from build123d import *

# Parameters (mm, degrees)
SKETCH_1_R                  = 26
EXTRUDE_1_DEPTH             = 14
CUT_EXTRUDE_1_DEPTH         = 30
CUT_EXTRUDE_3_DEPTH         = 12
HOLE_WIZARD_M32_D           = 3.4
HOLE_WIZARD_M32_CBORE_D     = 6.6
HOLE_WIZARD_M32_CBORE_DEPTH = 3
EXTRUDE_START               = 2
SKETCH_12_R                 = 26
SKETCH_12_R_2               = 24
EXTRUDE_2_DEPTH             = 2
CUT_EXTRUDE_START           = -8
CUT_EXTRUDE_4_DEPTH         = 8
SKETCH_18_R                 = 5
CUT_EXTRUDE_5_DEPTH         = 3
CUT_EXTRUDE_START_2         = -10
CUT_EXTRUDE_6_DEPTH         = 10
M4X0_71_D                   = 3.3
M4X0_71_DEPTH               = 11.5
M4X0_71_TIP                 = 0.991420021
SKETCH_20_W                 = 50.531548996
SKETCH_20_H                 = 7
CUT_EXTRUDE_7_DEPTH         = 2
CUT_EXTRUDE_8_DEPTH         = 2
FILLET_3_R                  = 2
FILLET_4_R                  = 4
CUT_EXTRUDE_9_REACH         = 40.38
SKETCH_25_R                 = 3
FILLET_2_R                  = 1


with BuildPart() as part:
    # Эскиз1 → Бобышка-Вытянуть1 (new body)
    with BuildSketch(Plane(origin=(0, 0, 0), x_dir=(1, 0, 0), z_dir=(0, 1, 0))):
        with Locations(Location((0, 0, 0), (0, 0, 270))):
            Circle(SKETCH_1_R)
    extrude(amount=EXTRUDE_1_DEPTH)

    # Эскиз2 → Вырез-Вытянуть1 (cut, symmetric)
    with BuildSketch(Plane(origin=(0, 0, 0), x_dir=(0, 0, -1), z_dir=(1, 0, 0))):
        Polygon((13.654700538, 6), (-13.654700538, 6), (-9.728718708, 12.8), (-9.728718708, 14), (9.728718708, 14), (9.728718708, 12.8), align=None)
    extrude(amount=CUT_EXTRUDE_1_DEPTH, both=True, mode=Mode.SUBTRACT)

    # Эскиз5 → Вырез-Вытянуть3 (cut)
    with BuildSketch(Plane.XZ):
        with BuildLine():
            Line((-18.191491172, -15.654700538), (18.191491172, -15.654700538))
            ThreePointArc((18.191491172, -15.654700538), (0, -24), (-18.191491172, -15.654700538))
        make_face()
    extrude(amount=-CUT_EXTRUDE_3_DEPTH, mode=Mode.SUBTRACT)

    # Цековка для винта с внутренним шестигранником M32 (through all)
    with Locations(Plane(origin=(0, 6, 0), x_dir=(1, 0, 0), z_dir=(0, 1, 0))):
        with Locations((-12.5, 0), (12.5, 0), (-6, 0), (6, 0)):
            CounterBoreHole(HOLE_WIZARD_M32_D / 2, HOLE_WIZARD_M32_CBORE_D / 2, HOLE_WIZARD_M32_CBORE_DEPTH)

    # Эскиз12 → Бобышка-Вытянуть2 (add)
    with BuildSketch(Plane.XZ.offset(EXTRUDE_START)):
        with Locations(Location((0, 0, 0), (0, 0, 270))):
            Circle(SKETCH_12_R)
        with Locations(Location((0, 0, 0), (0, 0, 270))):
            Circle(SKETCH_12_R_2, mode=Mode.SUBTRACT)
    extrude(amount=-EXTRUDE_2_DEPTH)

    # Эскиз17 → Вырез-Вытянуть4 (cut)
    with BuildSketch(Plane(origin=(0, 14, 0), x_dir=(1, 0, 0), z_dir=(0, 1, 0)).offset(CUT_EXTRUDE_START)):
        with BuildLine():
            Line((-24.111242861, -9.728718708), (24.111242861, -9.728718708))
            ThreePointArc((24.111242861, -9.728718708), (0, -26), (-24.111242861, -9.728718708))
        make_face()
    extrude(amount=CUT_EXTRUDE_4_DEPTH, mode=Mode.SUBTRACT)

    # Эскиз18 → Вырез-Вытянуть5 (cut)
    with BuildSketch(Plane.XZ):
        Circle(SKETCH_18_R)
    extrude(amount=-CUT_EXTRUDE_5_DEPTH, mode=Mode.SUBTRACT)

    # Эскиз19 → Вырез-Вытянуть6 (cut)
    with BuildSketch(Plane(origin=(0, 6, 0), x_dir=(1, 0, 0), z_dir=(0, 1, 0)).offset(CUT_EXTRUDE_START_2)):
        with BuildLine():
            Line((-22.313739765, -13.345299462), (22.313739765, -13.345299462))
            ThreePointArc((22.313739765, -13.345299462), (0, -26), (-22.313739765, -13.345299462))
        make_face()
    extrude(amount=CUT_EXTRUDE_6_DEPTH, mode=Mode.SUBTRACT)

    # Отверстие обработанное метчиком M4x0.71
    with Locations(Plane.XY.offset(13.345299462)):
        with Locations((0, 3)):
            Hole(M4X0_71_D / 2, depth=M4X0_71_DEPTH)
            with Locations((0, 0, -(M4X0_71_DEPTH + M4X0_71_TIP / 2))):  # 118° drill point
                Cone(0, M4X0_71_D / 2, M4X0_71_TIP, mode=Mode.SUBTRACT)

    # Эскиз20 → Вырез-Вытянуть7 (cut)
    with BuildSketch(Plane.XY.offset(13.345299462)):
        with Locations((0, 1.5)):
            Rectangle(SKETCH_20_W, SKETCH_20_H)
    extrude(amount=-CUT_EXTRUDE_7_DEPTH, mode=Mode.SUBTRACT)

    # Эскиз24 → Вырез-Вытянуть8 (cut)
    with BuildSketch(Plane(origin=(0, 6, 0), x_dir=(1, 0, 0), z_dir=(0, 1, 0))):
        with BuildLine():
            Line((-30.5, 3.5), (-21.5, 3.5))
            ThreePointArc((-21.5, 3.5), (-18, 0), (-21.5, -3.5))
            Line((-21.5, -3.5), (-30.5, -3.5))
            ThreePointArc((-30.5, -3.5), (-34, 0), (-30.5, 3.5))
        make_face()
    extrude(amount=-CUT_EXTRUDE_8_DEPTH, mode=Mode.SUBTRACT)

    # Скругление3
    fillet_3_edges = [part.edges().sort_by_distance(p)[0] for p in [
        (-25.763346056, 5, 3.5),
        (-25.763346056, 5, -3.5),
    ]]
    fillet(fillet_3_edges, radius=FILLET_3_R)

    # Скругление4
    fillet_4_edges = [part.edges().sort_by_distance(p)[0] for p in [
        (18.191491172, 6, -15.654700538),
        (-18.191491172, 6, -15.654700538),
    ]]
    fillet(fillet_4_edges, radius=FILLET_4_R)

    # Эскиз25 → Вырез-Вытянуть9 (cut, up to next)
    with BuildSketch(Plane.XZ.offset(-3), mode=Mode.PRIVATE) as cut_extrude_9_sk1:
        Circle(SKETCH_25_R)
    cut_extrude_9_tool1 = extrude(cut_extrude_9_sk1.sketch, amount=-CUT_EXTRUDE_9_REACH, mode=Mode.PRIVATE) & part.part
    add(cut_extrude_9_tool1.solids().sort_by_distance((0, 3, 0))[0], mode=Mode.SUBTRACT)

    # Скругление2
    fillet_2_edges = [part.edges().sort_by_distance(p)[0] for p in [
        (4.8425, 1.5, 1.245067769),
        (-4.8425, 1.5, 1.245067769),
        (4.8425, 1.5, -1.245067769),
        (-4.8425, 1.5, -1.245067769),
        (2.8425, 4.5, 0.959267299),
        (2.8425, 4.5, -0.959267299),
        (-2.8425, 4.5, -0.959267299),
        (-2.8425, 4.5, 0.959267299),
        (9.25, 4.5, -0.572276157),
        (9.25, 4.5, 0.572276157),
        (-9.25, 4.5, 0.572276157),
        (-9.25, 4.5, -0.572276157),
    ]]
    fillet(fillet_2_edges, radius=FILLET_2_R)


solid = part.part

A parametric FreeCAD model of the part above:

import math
import FreeCAD as App
import Part
import Sketcher

V = App.Vector
Q = App.Units.Quantity


def edges_at(feature, points):
    """Names of the edges that pass closest to the given points."""
    edges = feature.Shape.Edges
    near = lambda p: min(range(len(edges)), key=lambda i: edges[i].distToShape(Part.Vertex(*p))[0])
    return sorted({f"Edge{near(p) + 1}" for p in points})


def add_polygon(sketch, points):
    """Adds a closed chain of lines whose ends are joined by coincident constraints."""
    first, n = sketch.GeometryCount, len(points)
    for a, b in zip(points, points[1:] + points[:1]):
        sketch.addGeometry(Part.LineSegment(App.Vector(*a, 0), App.Vector(*b, 0)), False)
    for i in range(n):
        sketch.addConstraint(Sketcher.Constraint("Coincident", first + i, 2, first + (i + 1) % n, 1))

doc = App.newDocument("Part")
body = doc.addObject("PartDesign::Body", "Body")

# Sketch on XZ plane
sketch1 = body.newObject("Sketcher::SketchObject", "Sketch")
sketch1.AttachmentSupport = (doc.getObject("XZ_Plane"), [""])
sketch1.MapMode = "FlatFace"
sketch1.addGeometry(Part.Circle(V(0, 0, 0), V(0, 0, 1), 26), False)
sketch1.addConstraint([
    Sketcher.Constraint("Coincident", 0, 3, -1, 1),
    Sketcher.Constraint("Diameter", 0, 52.0),
])
pad1 = body.newObject("PartDesign::Pad", "Pad")
pad1.Profile = sketch1
pad1.Length = 14
pad1.Reversed = True

# Sketch on YZ plane
sketch2 = body.newObject("Sketcher::SketchObject", "Sketch001")
sketch2.AttachmentSupport = (doc.getObject("YZ_Plane"), [""])
sketch2.MapMode = "FlatFace"
add_polygon(sketch2, [(6, 13.654701), (6, -13.654701), (12.8, -9.728719), (14, -9.728719), (14, 9.728719), (12.8, 9.728719)])  # lines 0-5
sketch2.addConstraint([
    Sketcher.Constraint("Vertical", 0),
    Sketcher.Constraint("Horizontal", 2),
    Sketcher.Constraint("Vertical", 3),
    Sketcher.Constraint("Horizontal", 4),
    Sketcher.Constraint("Symmetric", 1, 2, 4, 2, -1),
    Sketcher.Constraint("Equal", 1, 5),
    Sketcher.Constraint("Angle", 1, Q("30 deg")),
    Sketcher.Constraint("DistanceX", 2, 1, 2, 2, 1.2),
    Sketcher.Constraint("DistanceX", -1, 1, 0, 2, 6.0),
    Sketcher.Constraint("DistanceX", -1, 1, 2, 2, 14.0),
    Sketcher.Constraint("DistanceY", 0, 2, 0, 1, 27.309401),
])
pocket1 = body.newObject("PartDesign::Pocket", "Pocket")
pocket1.Profile = sketch2
pocket1.Length = 60
pocket1.Midplane = True

# Sketch on XZ plane
sketch3 = body.newObject("Sketcher::SketchObject", "Sketch002")
sketch3.AttachmentSupport = (doc.getObject("XZ_Plane"), [""])
sketch3.MapMode = "FlatFace"
sketch3.addGeometry([
    Part.LineSegment(V(18.191491, -15.654701, 0), V(-18.191491, -15.654701, 0)),
    Part.ArcOfCircle(Part.Circle(V(0, 0, 0), V(0, 0, 1), 24), math.radians(-139.286336), math.radians(-40.713664)),
], False)
sketch3.addConstraint([
    Sketcher.Constraint("Coincident", 0, 1, 1, 2),
    Sketcher.Constraint("Coincident", 1, 1, 0, 2),
    Sketcher.Constraint("Horizontal", 0),
    Sketcher.Constraint("Coincident", 1, 3, -1, 1),
    Sketcher.Constraint("Radius", 1, 24.0),
    Sketcher.Constraint("DistanceY", 0, 1, -1, 1, 15.654701),
])
pocket2 = body.newObject("PartDesign::Pocket", "Pocket001")
pocket2.Profile = sketch3
pocket2.Length = 12

# Sketch on XZ plane
sketch4 = body.newObject("Sketcher::SketchObject", "Sketch003")
sketch4.AttachmentSupport = (doc.getObject("XZ_Plane"), [""])
sketch4.MapMode = "FlatFace"
sketch4.AttachmentOffset = App.Placement(V(0, 0, -6), App.Rotation())
sketch4.addGeometry([
    Part.Circle(V(-12.5, 0, 0), V(0, 0, 1), 1.7),
    Part.Circle(V(12.5, 0, 0), V(0, 0, 1), 1.7),
    Part.Circle(V(-6, 0, 0), V(0, 0, 1), 1.7),
    Part.Circle(V(6, 0, 0), V(0, 0, 1), 1.7),
], False)
sketch4.addConstraint([
    Sketcher.Constraint("Equal", 0, 1),
    Sketcher.Constraint("Equal", 1, 2),
    Sketcher.Constraint("Equal", 2, 3),
    Sketcher.Constraint("Symmetric", 0, 3, 1, 3, -1, 1),
    Sketcher.Constraint("Symmetric", 2, 3, 3, 3, -1, 1),
    Sketcher.Constraint("PointOnObject", 0, 3, -1),
    Sketcher.Constraint("PointOnObject", 2, 3, -1),
    Sketcher.Constraint("Diameter", 0, 3.4),
    Sketcher.Constraint("DistanceX", 2, 3, -1, 1, 6.0),
    Sketcher.Constraint("DistanceX", 0, 3, 1, 3, 25.0),
])
doc.recompute()
hole = body.newObject("PartDesign::Hole", "Hole")
hole.Profile = sketch4
hole.ThreadType = "None"
hole.Diameter = 3.4
hole.DepthType = "ThroughAll"
hole.HoleCutType = "Counterbore"
hole.HoleCutDiameter = 6.6
hole.HoleCutDepth = 3
hole.Reversed = True

# Sketch on XZ plane
sketch5 = body.newObject("Sketcher::SketchObject", "Sketch004")
sketch5.AttachmentSupport = (doc.getObject("XZ_Plane"), [""])
sketch5.MapMode = "FlatFace"
sketch5.AttachmentOffset = App.Placement(V(0, 0, 2), App.Rotation())
sketch5.addGeometry([
    Part.Circle(V(0, 0, 0), V(0, 0, 1), 26),
    Part.Circle(V(0, 0, 0), V(0, 0, 1), 24),
], False)
sketch5.addConstraint([
    Sketcher.Constraint("Coincident", 0, 3, -1, 1),
    Sketcher.Constraint("Coincident", 1, 3, -1, 1),
    Sketcher.Constraint("Diameter", 0, 52.0),
    Sketcher.Constraint("Diameter", 1, 48.0),
])
pad2 = body.newObject("PartDesign::Pad", "Pad001")
pad2.Profile = sketch5
pad2.Length = 2
pad2.Reversed = True

# Sketch on XZ plane
sketch6 = body.newObject("Sketcher::SketchObject", "Sketch005")
sketch6.AttachmentSupport = (doc.getObject("XZ_Plane"), [""])
sketch6.MapMode = "FlatFace"
sketch6.AttachmentOffset = App.Placement(V(0, 0, -6), App.Rotation())
sketch6.addGeometry([
    Part.LineSegment(V(24.111243, 9.728719, 0), V(-24.111243, 9.728719, 0)),
    Part.ArcOfCircle(Part.Circle(V(0, 0, 0), V(0, 0, 1), 26), math.radians(21.973733), math.radians(158.026267)),
], False)
sketch6.addConstraint([
    Sketcher.Constraint("Coincident", 0, 1, 1, 1),
    Sketcher.Constraint("Coincident", 1, 2, 0, 2),
    Sketcher.Constraint("Horizontal", 0),
    Sketcher.Constraint("Coincident", 1, 3, -1, 1),
    Sketcher.Constraint("Radius", 1, 26.0),
    Sketcher.Constraint("DistanceX", 0, 2, 0, 1, 48.222486),
])
pocket3 = body.newObject("PartDesign::Pocket", "Pocket002")
pocket3.Profile = sketch6
pocket3.Length = 8

# Sketch on XZ plane
sketch7 = body.newObject("Sketcher::SketchObject", "Sketch006")
sketch7.AttachmentSupport = (doc.getObject("XZ_Plane"), [""])
sketch7.MapMode = "FlatFace"
sketch7.addGeometry(Part.Circle(V(0, 0, 0), V(0, 0, 1), 5), False)
sketch7.addConstraint([
    Sketcher.Constraint("Coincident", 0, 3, -1, 1),
    Sketcher.Constraint("Diameter", 0, 10.0),
])
pocket4 = body.newObject("PartDesign::Pocket", "Pocket003")
pocket4.Profile = sketch7
pocket4.Length = 3

# Sketch on XZ plane
sketch8 = body.newObject("Sketcher::SketchObject", "Sketch007")
sketch8.AttachmentSupport = (doc.getObject("XZ_Plane"), [""])
sketch8.MapMode = "FlatFace"
sketch8.AttachmentOffset = App.Placement(V(0, 0, 4), App.Rotation())
sketch8.addGeometry([
    Part.LineSegment(V(22.31374, 13.345299, 0), V(-22.31374, 13.345299, 0)),
    Part.ArcOfCircle(Part.Circle(V(0, 0, 0), V(0, 0, 1), 26), math.radians(30.882607), math.radians(149.117393)),
], False)
sketch8.addConstraint([
    Sketcher.Constraint("Coincident", 0, 1, 1, 1),
    Sketcher.Constraint("Coincident", 1, 2, 0, 2),
    Sketcher.Constraint("Horizontal", 0),
    Sketcher.Constraint("Coincident", 1, 3, -1, 1),
    Sketcher.Constraint("Radius", 1, 26.0),
    Sketcher.Constraint("DistanceX", 0, 2, 0, 1, 44.62748),
])
pocket5 = body.newObject("PartDesign::Pocket", "Pocket004")
pocket5.Profile = sketch8
pocket5.Length = 10

# Sketch on XY plane
sketch9 = body.newObject("Sketcher::SketchObject", "Sketch008")
sketch9.AttachmentSupport = (doc.getObject("XY_Plane"), [""])
sketch9.MapMode = "FlatFace"
sketch9.AttachmentOffset = App.Placement(V(0, 0, 13.345299), App.Rotation())
sketch9.addGeometry(Part.Circle(V(0, 3, 0), V(0, 0, 1), 1.65), False)
sketch9.addConstraint([
    Sketcher.Constraint("PointOnObject", 0, 3, -2),
    Sketcher.Constraint("Diameter", 0, 3.3),
    Sketcher.Constraint("DistanceY", -1, 1, 0, 3, 3.0),
])
doc.recompute()
hole2 = body.newObject("PartDesign::Hole", "Hole001")
hole2.Profile = sketch9
hole2.ThreadType = "None"
hole2.Diameter = 3.3
hole2.DepthType = "Dimension"
hole2.Depth = 11.5
hole2.DrillPoint = "Angled"
hole2.DrillPointAngle = 118

# Sketch on XY plane
sketch10 = body.newObject("Sketcher::SketchObject", "Sketch009")
sketch10.AttachmentSupport = (doc.getObject("XY_Plane"), [""])
sketch10.MapMode = "FlatFace"
sketch10.AttachmentOffset = App.Placement(V(0, 0, 13.345299), App.Rotation())
add_polygon(sketch10, [(-25.265774, 5), (-25.265774, -2), (25.265774, -2), (25.265774, 5)])  # lines 0-3
sketch10.addConstraint([
    Sketcher.Constraint("Vertical", 0),
    Sketcher.Constraint("Horizontal", 1),
    Sketcher.Constraint("Vertical", 2),
    Sketcher.Constraint("Horizontal", 3),
    Sketcher.Constraint("DistanceY", 0, 2, 0, 1, 7.0),
    Sketcher.Constraint("DistanceY", 0, 2, -1, 1, 2.0),
    Sketcher.Constraint("DistanceX", 1, 1, 1, 2, 50.531549),
    Sketcher.Constraint("DistanceX", 0, 2, -1, 1, 25.265774),
])
pocket6 = body.newObject("PartDesign::Pocket", "Pocket005")
pocket6.Profile = sketch10
pocket6.Length = 2

# Sketch on XZ plane
sketch11 = body.newObject("Sketcher::SketchObject", "Sketch010")
sketch11.AttachmentSupport = (doc.getObject("XZ_Plane"), [""])
sketch11.MapMode = "FlatFace"
sketch11.AttachmentOffset = App.Placement(V(0, 0, -6), App.Rotation())
sketch11.addGeometry([
    Part.LineSegment(V(-21.5, -3.5, 0), V(-30.5, -3.5, 0)),
    Part.ArcOfCircle(Part.Circle(V(-30.5, 0, 0), V(0, 0, 1), 3.5), math.radians(90), math.radians(270)),
    Part.LineSegment(V(-30.5, 3.5, 0), V(-21.5, 3.5, 0)),
    Part.ArcOfCircle(Part.Circle(V(-21.5, 0, 0), V(0, 0, 1), 3.5), math.radians(-90), math.radians(90)),
], False)
sketch11.addConstraint([
    Sketcher.Constraint("Tangent", 0, 2, 1, 2),
    Sketcher.Constraint("Tangent", 1, 1, 2, 1),
    Sketcher.Constraint("Tangent", 2, 2, 3, 2),
    Sketcher.Constraint("Tangent", 3, 1, 0, 1),
    Sketcher.Constraint("Horizontal", 0),
    Sketcher.Constraint("Horizontal", 2),
    Sketcher.Constraint("PointOnObject", 1, 3, -1),
    Sketcher.Constraint("Radius", 1, 3.5),
    Sketcher.Constraint("DistanceX", 0, 2, 0, 1, 9.0),
    Sketcher.Constraint("DistanceX", 1, 3, -1, 1, 30.5),
])
pocket7 = body.newObject("PartDesign::Pocket", "Pocket006")
pocket7.Profile = sketch11
pocket7.Length = 2
pocket7.Reversed = True
doc.recompute()

fillet = body.newObject("PartDesign::Fillet", "Fillet")
fillet.Base = (pocket7, edges_at(pocket7, [(-25.763, 5, 3.5), (-25.763, 5, -3.5)]))
fillet.Radius = 2
doc.recompute()

fillet2 = body.newObject("PartDesign::Fillet", "Fillet001")
fillet2.Base = (fillet, edges_at(fillet, [(18.191, 6, -15.655), (-18.191, 6, -15.655)]))
fillet2.Radius = 4

# Sketch on XZ plane
sketch12 = body.newObject("Sketcher::SketchObject", "Sketch011")
sketch12.AttachmentSupport = (doc.getObject("XZ_Plane"), [""])
sketch12.MapMode = "FlatFace"
sketch12.AttachmentOffset = App.Placement(V(0, 0, -3), App.Rotation())
sketch12.addGeometry(Part.Circle(V(0, 0, 0), V(0, 0, 1), 3), False)
sketch12.addConstraint([
    Sketcher.Constraint("Coincident", 0, 3, -1, 1),
    Sketcher.Constraint("Diameter", 0, 6.0),
])
pocket8 = body.newObject("PartDesign::Pocket", "Pocket007")
pocket8.Profile = sketch12
pocket8.Type = "UpToFirst"
doc.recompute()

fillet3 = body.newObject("PartDesign::Fillet", "Fillet002")
fillet3.Base = (pocket8, edges_at(pocket8, [
    (4.843, 1.5, 1.245),
    (-4.843, 1.5, 1.245),
    (4.843, 1.5, -1.245),
    (-4.843, 1.5, -1.245),
    (2.842, 4.5, 0.959),
    (2.842, 4.5, -0.959),
    (-2.842, 4.5, -0.959),
    (-2.842, 4.5, 0.959),
    (9.25, 4.5, -0.572),
    (9.25, 4.5, 0.572),
    (-9.25, 4.5, 0.572),
    (-9.25, 4.5, -0.572),
]))
fillet3.Radius = 1

doc.recompute()
